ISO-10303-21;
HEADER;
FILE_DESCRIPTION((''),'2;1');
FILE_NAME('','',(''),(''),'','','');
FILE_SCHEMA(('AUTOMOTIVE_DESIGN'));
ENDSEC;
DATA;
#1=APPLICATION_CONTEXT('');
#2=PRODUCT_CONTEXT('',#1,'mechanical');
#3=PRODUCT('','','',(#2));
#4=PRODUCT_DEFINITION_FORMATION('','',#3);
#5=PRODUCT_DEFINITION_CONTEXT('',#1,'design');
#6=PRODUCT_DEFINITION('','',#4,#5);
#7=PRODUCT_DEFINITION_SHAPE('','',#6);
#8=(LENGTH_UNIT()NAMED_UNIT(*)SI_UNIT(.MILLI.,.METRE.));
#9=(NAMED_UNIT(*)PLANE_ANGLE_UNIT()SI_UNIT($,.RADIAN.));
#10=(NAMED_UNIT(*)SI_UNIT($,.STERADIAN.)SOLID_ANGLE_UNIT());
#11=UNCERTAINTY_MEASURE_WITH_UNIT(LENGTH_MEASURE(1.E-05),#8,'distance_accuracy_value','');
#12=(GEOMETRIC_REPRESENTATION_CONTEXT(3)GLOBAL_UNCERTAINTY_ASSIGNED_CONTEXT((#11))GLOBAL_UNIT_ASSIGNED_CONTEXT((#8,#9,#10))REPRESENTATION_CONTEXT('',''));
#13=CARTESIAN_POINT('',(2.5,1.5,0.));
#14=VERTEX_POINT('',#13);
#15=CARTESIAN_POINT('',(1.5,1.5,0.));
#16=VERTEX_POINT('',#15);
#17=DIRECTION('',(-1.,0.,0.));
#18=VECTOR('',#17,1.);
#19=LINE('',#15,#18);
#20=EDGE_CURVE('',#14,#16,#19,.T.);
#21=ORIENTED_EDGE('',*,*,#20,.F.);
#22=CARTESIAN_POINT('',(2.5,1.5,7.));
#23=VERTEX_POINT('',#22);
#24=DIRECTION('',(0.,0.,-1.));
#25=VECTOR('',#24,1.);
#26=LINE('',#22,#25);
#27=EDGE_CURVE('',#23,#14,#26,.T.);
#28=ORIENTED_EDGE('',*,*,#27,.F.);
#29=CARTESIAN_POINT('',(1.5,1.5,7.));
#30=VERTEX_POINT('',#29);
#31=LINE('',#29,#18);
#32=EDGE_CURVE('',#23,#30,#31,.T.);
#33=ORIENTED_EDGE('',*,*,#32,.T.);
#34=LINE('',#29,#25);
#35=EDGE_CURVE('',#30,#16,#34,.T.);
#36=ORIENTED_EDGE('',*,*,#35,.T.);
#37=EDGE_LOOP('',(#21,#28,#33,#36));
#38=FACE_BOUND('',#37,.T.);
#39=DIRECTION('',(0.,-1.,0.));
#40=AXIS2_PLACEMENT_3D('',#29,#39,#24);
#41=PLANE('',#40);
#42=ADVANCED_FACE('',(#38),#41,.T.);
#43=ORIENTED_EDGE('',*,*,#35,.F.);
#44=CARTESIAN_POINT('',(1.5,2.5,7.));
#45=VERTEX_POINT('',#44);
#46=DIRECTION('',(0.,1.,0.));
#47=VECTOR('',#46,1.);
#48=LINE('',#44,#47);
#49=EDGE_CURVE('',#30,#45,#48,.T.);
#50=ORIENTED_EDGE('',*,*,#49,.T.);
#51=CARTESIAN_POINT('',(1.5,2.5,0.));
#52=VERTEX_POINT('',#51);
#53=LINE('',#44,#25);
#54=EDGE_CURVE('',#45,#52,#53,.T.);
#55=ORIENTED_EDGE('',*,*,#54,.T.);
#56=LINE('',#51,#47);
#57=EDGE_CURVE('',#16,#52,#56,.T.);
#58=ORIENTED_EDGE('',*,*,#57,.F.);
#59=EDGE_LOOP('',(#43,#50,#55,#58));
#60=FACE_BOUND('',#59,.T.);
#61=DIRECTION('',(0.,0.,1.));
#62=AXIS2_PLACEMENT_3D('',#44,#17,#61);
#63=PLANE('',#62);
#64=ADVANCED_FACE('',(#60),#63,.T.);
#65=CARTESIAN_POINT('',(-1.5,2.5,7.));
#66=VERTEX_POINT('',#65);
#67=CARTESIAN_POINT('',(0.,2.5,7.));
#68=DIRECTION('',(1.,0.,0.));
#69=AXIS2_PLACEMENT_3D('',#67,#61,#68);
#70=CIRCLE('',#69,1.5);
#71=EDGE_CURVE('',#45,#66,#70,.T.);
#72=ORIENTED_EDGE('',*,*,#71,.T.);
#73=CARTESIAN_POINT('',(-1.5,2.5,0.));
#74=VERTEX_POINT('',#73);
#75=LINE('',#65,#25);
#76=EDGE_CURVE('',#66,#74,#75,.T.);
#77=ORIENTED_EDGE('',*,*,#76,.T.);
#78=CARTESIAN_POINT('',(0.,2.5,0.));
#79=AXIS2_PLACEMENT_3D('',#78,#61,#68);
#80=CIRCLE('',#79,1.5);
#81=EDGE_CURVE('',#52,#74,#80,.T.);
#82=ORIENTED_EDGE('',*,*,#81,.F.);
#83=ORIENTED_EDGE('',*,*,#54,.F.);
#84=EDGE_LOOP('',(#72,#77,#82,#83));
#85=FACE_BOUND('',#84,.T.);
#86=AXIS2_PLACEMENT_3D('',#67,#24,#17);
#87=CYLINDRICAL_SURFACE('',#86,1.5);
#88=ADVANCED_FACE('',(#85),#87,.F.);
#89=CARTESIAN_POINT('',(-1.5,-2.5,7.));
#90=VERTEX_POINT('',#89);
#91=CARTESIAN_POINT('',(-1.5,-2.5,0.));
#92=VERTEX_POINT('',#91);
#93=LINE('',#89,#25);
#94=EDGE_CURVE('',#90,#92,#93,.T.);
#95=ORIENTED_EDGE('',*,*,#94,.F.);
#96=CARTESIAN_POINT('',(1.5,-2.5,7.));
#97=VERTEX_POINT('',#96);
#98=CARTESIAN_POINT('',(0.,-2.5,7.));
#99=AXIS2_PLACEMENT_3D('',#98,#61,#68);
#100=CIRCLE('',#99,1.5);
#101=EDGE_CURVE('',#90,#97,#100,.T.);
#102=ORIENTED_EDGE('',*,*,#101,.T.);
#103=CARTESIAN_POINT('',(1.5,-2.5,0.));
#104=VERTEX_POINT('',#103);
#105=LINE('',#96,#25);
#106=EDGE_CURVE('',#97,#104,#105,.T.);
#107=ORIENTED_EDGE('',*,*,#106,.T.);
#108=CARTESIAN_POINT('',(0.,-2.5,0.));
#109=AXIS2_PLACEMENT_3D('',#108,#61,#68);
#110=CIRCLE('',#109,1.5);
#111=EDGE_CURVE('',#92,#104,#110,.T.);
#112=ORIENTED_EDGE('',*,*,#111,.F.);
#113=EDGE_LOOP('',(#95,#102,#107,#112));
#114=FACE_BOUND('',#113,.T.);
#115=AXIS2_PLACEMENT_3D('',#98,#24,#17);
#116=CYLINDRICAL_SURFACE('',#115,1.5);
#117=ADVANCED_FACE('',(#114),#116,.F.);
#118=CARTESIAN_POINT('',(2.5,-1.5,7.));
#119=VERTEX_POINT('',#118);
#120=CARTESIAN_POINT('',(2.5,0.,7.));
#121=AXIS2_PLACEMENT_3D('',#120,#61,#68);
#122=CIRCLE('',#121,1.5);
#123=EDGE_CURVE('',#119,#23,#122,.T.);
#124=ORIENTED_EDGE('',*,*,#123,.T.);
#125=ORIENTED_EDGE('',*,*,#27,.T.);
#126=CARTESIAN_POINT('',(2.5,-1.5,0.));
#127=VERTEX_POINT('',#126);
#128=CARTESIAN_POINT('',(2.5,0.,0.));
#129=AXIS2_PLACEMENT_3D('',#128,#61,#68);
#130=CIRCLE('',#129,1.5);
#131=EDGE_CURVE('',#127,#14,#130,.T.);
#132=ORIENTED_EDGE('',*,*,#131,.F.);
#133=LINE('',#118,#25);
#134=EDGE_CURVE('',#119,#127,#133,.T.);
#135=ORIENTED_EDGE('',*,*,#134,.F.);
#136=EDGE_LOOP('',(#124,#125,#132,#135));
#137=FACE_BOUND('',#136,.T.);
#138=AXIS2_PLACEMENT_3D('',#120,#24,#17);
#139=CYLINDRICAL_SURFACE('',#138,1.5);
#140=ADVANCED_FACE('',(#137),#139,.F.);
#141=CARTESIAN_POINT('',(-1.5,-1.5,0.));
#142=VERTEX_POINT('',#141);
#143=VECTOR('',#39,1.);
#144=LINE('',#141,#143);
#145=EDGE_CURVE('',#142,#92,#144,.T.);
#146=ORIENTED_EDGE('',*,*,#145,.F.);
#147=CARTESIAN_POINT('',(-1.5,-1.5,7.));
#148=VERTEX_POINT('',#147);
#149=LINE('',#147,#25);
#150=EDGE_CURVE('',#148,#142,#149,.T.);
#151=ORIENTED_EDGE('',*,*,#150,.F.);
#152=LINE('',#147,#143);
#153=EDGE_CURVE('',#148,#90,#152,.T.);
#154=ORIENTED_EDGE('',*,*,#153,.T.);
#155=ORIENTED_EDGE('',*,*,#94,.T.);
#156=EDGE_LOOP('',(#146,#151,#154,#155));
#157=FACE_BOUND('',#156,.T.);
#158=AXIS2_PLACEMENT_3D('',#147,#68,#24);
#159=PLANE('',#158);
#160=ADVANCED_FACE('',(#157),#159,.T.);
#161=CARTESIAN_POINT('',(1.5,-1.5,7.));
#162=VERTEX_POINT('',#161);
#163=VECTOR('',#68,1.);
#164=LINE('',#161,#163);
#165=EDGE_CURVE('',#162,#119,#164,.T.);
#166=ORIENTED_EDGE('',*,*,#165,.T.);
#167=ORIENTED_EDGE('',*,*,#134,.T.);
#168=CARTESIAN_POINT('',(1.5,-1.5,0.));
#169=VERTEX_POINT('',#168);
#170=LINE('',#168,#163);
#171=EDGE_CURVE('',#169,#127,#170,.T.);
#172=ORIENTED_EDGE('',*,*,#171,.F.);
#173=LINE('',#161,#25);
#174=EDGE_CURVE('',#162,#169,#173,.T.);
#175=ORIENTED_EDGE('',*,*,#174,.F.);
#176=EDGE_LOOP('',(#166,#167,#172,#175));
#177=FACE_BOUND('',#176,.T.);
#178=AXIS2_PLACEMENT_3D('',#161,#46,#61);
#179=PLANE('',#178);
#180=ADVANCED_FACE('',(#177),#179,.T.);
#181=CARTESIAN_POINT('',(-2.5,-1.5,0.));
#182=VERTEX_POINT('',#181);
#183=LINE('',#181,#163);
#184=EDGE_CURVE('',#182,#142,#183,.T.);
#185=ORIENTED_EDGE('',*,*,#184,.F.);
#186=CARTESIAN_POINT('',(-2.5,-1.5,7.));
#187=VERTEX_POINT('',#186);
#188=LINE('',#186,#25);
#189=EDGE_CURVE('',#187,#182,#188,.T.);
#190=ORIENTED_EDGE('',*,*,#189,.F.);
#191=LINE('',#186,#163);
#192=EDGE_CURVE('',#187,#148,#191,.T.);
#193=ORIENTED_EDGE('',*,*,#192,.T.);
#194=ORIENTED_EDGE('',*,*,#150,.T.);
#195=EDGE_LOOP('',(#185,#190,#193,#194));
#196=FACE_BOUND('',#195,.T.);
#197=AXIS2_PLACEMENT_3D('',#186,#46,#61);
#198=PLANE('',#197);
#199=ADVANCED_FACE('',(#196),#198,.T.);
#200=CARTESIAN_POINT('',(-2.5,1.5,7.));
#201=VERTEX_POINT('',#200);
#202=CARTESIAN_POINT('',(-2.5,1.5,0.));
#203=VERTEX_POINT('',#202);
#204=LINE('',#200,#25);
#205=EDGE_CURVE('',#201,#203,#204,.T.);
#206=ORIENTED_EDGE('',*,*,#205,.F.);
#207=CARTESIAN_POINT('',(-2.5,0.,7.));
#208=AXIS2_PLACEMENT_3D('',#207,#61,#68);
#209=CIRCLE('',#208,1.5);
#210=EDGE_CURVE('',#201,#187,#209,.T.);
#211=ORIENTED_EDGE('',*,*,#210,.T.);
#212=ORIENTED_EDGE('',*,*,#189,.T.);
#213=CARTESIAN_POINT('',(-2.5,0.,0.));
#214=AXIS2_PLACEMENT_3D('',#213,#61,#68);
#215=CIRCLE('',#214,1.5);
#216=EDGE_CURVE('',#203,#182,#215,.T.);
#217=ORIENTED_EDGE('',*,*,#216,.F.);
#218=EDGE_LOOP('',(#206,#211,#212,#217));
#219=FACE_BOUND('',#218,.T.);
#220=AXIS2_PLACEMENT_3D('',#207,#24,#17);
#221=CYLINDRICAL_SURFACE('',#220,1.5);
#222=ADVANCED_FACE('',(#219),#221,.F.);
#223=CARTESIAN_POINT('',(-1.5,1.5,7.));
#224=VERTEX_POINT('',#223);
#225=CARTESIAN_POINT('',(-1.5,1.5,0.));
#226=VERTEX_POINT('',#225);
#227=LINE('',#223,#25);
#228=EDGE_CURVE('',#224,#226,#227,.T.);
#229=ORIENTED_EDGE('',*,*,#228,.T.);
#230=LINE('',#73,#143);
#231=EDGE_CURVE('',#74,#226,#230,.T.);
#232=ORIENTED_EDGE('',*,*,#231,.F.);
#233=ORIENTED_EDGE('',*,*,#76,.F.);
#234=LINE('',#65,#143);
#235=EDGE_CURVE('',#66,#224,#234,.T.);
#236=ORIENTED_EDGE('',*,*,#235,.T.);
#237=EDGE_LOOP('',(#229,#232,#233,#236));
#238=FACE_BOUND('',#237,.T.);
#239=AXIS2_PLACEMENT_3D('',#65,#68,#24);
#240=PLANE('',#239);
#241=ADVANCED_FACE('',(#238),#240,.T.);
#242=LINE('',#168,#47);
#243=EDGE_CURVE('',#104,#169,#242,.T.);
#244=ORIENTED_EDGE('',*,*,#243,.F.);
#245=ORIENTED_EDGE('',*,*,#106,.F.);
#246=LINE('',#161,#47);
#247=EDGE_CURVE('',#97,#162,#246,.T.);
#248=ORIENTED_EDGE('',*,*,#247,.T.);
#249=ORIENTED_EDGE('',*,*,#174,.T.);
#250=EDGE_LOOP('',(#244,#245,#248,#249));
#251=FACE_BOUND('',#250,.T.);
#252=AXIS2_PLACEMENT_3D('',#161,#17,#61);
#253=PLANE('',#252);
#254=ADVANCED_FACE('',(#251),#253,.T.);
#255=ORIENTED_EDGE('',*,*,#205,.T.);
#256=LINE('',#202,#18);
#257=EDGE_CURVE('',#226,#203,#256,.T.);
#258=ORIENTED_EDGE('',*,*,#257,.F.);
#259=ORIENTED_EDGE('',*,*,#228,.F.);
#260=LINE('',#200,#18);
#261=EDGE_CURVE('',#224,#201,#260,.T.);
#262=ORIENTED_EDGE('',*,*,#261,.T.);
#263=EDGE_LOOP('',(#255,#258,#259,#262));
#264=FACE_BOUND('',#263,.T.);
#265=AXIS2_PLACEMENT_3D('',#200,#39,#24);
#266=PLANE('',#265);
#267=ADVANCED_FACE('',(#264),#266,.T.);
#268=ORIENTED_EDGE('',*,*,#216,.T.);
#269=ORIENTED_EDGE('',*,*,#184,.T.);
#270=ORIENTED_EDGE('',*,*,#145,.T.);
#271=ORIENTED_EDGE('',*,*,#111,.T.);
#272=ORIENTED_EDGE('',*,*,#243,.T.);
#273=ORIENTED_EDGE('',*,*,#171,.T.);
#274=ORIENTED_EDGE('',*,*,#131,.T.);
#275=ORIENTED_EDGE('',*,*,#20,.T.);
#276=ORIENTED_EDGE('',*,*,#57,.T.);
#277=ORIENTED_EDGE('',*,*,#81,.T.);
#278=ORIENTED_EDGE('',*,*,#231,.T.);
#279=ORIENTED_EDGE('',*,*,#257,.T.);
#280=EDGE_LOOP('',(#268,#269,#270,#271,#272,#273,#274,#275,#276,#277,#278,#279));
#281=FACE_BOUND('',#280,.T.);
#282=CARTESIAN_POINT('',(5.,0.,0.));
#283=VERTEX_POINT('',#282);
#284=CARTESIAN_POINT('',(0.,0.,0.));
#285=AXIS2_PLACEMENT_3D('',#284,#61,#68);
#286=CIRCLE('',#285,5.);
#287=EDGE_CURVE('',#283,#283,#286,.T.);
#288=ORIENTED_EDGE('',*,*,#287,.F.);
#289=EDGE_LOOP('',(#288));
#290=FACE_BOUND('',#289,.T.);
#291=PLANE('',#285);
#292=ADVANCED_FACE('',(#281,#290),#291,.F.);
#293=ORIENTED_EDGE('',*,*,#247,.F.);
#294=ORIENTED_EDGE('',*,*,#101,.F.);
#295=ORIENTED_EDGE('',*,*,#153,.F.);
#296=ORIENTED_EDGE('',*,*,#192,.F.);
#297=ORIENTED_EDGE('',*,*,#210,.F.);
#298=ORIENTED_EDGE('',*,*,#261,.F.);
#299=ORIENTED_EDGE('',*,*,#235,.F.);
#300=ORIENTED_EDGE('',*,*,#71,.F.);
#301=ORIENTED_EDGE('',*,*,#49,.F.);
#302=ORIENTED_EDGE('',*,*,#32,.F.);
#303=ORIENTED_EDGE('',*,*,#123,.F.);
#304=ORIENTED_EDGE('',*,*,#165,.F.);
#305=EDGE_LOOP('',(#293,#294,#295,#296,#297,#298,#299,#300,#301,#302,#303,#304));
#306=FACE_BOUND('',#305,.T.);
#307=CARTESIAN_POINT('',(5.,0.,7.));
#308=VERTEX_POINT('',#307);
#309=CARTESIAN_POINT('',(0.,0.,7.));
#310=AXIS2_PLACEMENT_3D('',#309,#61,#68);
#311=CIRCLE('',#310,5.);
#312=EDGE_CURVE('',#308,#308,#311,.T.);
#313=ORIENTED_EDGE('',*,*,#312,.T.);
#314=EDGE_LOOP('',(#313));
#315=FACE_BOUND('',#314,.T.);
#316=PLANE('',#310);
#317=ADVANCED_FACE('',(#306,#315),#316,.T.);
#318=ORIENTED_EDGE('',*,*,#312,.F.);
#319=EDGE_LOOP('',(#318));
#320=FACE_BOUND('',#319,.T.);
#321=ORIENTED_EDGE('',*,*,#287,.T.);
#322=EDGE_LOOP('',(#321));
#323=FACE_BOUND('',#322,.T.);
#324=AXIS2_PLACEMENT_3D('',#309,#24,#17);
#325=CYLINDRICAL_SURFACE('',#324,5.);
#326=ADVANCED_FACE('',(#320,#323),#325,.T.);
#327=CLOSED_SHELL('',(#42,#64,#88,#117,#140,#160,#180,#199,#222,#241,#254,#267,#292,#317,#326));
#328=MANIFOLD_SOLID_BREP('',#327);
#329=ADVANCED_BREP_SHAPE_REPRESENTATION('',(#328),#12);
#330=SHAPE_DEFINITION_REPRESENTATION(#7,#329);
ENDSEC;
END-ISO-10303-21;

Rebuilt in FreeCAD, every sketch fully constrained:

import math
import FreeCAD as App
import Part
import Sketcher
from FreeCAD import Vector

doc = App.newDocument("Part")
body = doc.addObject("PartDesign::Body", "Body")

# Sketch on XY plane
sketch1 = body.newObject("Sketcher::SketchObject", "Sketch")
sketch1.AttachmentSupport = (doc.getObject("XY_Plane"), [""])
sketch1.MapMode = "FlatFace"
sketch1.addGeometry([
    Part.Circle(Vector(0, 0, 0), Vector(0, 0, 1), 5),  # 0
    Part.ArcOfCircle(Part.Circle(Vector(-2.5, 0, 0), Vector(0, 0, 1), 1.5), math.radians(90), math.radians(270)),  # 1
    Part.LineSegment(Vector(-2.5, 1.5, 0), Vector(-1.5, 1.5, 0)),  # 2
    Part.LineSegment(Vector(-1.5, 1.5, 0), Vector(-1.5, 2.5, 0)),  # 3
    Part.ArcOfCircle(Part.Circle(Vector(0, 2.5, 0), Vector(0, 0, 1), 1.5), math.radians(0), math.radians(180)),  # 4
    Part.LineSegment(Vector(1.5, 2.5, 0), Vector(1.5, 1.5, 0)),  # 5
    Part.LineSegment(Vector(1.5, 1.5, 0), Vector(2.5, 1.5, 0)),  # 6
    Part.ArcOfCircle(Part.Circle(Vector(2.5, 0, 0), Vector(0, 0, 1), 1.5), math.radians(-90), math.radians(90)),  # 7
    Part.LineSegment(Vector(2.5, -1.5, 0), Vector(1.5, -1.5, 0)),  # 8
    Part.LineSegment(Vector(1.5, -1.5, 0), Vector(1.5, -2.5, 0)),  # 9
    Part.ArcOfCircle(Part.Circle(Vector(0, -2.5, 0), Vector(0, 0, 1), 1.5), math.radians(180), math.radians(360)),  # 10
    Part.LineSegment(Vector(-1.5, -2.5, 0), Vector(-1.5, -1.5, 0)),  # 11
    Part.LineSegment(Vector(-1.5, -1.5, 0), Vector(-2.5, -1.5, 0)),  # 12
], False)
sketch1.addConstraint([
    Sketcher.Constraint("Tangent", 1, 1, 2, 1),
    Sketcher.Constraint("Coincident", 2, 2, 3, 1),
    Sketcher.Constraint("Tangent", 3, 2, 4, 2),
    Sketcher.Constraint("Tangent", 4, 1, 5, 1),
    Sketcher.Constraint("Coincident", 5, 2, 6, 1),
    Sketcher.Constraint("Tangent", 6, 2, 7, 2),
    Sketcher.Constraint("Tangent", 7, 1, 8, 1),
    Sketcher.Constraint("Coincident", 8, 2, 9, 1),
    Sketcher.Constraint("Tangent", 9, 2, 10, 2),
    Sketcher.Constraint("Tangent", 10, 1, 11, 1),
    Sketcher.Constraint("Coincident", 11, 2, 12, 1),
    Sketcher.Constraint("Tangent", 12, 2, 1, 2),
    Sketcher.Constraint("Horizontal", 2),
    Sketcher.Constraint("Vertical", 3),
    Sketcher.Constraint("Vertical", 5),
    Sketcher.Constraint("Horizontal", 6),
    Sketcher.Constraint("Horizontal", 8),
    Sketcher.Constraint("Vertical", 9),
    Sketcher.Constraint("Vertical", 11),
    Sketcher.Constraint("Horizontal", 12),
    Sketcher.Constraint("Coincident", 0, 3, -1, 1),
    Sketcher.Constraint("Equal", 1, 4),
    Sketcher.Constraint("Equal", 4, 7),
    Sketcher.Constraint("Equal", 7, 10),
    Sketcher.Constraint("Symmetric", 1, 3, 7, 3, -1, 1),
    Sketcher.Constraint("Symmetric", 4, 3, 10, 3, -1, 1),
    Sketcher.Constraint("Symmetric", 2, 2, 5, 2, -2),
    Sketcher.Constraint("Equal", 12, 3),
    Sketcher.Constraint("Diameter", 0, 10.0),
    Sketcher.Constraint("Radius", 1, 1.5),
    Sketcher.Constraint("DistanceX", 2, 1, 2, 2, 1.0),
])
pad1 = body.newObject("PartDesign::Pad", "Pad")
pad1.Profile = sketch1
pad1.Length = 7

doc.recompute()
